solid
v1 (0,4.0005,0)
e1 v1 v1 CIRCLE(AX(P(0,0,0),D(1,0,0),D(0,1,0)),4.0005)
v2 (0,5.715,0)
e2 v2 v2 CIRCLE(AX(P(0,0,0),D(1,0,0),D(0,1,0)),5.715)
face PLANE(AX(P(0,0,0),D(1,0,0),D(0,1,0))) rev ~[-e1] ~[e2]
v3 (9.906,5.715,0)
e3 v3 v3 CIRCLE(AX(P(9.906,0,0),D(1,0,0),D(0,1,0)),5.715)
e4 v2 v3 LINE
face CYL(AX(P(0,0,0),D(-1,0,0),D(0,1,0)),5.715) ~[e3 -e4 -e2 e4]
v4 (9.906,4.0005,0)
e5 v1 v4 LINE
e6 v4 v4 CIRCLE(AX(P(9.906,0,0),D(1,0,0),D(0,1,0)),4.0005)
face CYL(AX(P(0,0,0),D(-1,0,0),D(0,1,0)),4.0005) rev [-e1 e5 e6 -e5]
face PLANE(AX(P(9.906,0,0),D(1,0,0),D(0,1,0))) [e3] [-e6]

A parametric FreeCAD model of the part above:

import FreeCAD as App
import Part
import Sketcher

V = App.Vector
Q = App.Units.Quantity

doc = App.newDocument("Part")
params = doc.addObject("Spreadsheet::Sheet", "Params")
for row, (alias, value) in enumerate([
    ("sketch1_diameter", "0.45 in"),
    ("sketch1_diameter2", "0.315 in"),
    ("pad1_length", "0.39 in"),
], start=1):
    params.set(f"A{row}", alias)
    params.set(f"B{row}", "=" + value)
    params.setAlias(f"B{row}", alias)

body = doc.addObject("PartDesign::Body", "Body")

# Sketch on YZ plane
sketch1 = body.newObject("Sketcher::SketchObject", "Sketch")
sketch1.AttachmentSupport = (doc.getObject("YZ_Plane"), [""])
sketch1.MapMode = "FlatFace"
sketch1.addGeometry([
    Part.Circle(V(0, 0, 0), V(0, 0, 1), 5.7),
    Part.Circle(V(0, 0, 0), V(0, 0, 1), 4),
], False)
sketch1.addConstraint([
    Sketcher.Constraint("Coincident", 0, 3, -1, 1),
    Sketcher.Constraint("Coincident", 1, 3, -1, 1),
    Sketcher.Constraint("Diameter", 0, Q("0.45 in")),
    Sketcher.Constraint("Diameter", 1, Q("0.315 in")),
])
sketch1.setExpression("Constraints[2]", "Params.sketch1_diameter")
sketch1.setExpression("Constraints[3]", "Params.sketch1_diameter2")
pad1 = body.newObject("PartDesign::Pad", "Pad")
pad1.Profile = sketch1
pad1.setExpression("Length", "Params.pad1_length")

doc.recompute()
